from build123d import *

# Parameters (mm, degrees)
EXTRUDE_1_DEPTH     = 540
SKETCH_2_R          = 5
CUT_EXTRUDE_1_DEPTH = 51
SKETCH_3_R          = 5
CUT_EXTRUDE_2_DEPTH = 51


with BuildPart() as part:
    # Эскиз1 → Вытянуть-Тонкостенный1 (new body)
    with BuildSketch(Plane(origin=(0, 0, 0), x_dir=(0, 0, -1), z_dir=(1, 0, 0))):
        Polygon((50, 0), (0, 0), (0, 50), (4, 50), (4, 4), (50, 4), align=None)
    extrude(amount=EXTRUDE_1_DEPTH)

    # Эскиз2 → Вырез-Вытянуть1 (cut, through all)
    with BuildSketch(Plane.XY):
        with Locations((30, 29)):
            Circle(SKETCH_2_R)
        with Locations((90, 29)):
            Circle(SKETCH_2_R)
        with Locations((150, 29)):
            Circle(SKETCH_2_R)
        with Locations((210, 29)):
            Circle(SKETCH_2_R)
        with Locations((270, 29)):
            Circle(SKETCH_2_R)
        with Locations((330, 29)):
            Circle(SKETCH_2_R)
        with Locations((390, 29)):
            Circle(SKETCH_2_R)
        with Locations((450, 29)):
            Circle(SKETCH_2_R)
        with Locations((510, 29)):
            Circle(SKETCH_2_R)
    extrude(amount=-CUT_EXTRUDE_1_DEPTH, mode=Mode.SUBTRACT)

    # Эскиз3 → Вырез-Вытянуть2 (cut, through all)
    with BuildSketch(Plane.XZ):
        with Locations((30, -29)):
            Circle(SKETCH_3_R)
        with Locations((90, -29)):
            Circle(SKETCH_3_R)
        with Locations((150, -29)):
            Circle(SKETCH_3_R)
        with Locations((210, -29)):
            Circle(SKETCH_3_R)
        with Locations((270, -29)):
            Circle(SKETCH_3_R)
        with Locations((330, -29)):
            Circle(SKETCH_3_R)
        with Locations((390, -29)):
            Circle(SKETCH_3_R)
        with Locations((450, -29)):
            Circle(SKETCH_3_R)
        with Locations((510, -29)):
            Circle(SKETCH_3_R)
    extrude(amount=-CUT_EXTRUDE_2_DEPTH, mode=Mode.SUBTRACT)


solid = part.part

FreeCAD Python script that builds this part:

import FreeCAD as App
import Part
import Sketcher

V = App.Vector
Q = App.Units.Quantity

doc = App.newDocument("Part")
body = doc.addObject("PartDesign::Body", "Body")

sketch1 = doc.addObject("Sketcher::SketchObject", "Sketch")
body.addObject(sketch1)
sketch1.AttachmentSupport = (doc.YZ_Plane, [""])
sketch1.MapMode = "FlatFace"
sketch1.addGeometry([
    Part.LineSegment(V(0, 0, 0), V(0, -50, 0)),
    Part.LineSegment(V(0, -50, 0), V(4, -50, 0)),
    Part.LineSegment(V(4, -50, 0), V(4, -4, 0)),
    Part.LineSegment(V(4, -4, 0), V(50, -4, 0)),
    Part.LineSegment(V(50, -4, 0), V(50, 0, 0)),
    Part.LineSegment(V(50, 0, 0), V(0, 0, 0)),
], False)
sketch1.addConstraint([
    Sketcher.Constraint("Coincident", 0, 2, 1, 1),
    Sketcher.Constraint("Coincident", 1, 2, 2, 1),
    Sketcher.Constraint("Coincident", 2, 2, 3, 1),
    Sketcher.Constraint("Coincident", 3, 2, 4, 1),
    Sketcher.Constraint("Coincident", 4, 2, 5, 1),
    Sketcher.Constraint("Coincident", 5, 2, 0, 1),
    Sketcher.Constraint("Vertical", 0),
    Sketcher.Constraint("Horizontal", 1),
    Sketcher.Constraint("Vertical", 2),
    Sketcher.Constraint("Horizontal", 3),
    Sketcher.Constraint("Vertical", 4),
    Sketcher.Constraint("Horizontal", 5),
    Sketcher.Constraint("Coincident", 5, 2, -1, 1),
    Sketcher.Constraint("Equal", 5, 0),
    Sketcher.Constraint("Equal", 3, 2),
    Sketcher.Constraint("DistanceX", 1, 1, 1, 2, Q("4 mm")),
    Sketcher.Constraint("DistanceX", 3, 1, 3, 2, Q("46 mm")),
])
pad1 = doc.addObject("PartDesign::Pad", "Pad")
body.addObject(pad1)
pad1.Profile = sketch1
pad1.Length = 540

sketch2 = doc.addObject("Sketcher::SketchObject", "Sketch001")
body.addObject(sketch2)
sketch2.AttachmentSupport = (doc.XY_Plane, [""])
sketch2.MapMode = "FlatFace"
sketch2.addGeometry([
    Part.Circle(V(30, 29, 0), V(0, 0, 1), 5),
    Part.Circle(V(90, 29, 0), V(0, 0, 1), 5),
    Part.Circle(V(150, 29, 0), V(0, 0, 1), 5),
    Part.Circle(V(210, 29, 0), V(0, 0, 1), 5),
    Part.Circle(V(270, 29, 0), V(0, 0, 1), 5),
    Part.Circle(V(330, 29, 0), V(0, 0, 1), 5),
    Part.Circle(V(390, 29, 0), V(0, 0, 1), 5),
    Part.Circle(V(450, 29, 0), V(0, 0, 1), 5),
    Part.Circle(V(510, 29, 0), V(0, 0, 1), 5),
], False)
sketch2.addConstraint([
    Sketcher.Constraint("Equal", 0, 1),
    Sketcher.Constraint("Equal", 1, 2),
    Sketcher.Constraint("Equal", 2, 3),
    Sketcher.Constraint("Equal", 3, 4),
    Sketcher.Constraint("Equal", 4, 5),
    Sketcher.Constraint("Equal", 5, 6),
    Sketcher.Constraint("Equal", 6, 7),
    Sketcher.Constraint("Equal", 7, 8),
    Sketcher.Constraint("Horizontal", 0, 3, 1, 3),
    Sketcher.Constraint("Horizontal", 1, 3, 2, 3),
    Sketcher.Constraint("Horizontal", 2, 3, 3, 3),
    Sketcher.Constraint("Horizontal", 3, 3, 4, 3),
    Sketcher.Constraint("Horizontal", 4, 3, 5, 3),
    Sketcher.Constraint("Horizontal", 5, 3, 6, 3),
    Sketcher.Constraint("Horizontal", 6, 3, 7, 3),
    Sketcher.Constraint("Horizontal", 7, 3, 8, 3),
    Sketcher.Constraint("Diameter", 0, Q("10 mm")),
    Sketcher.Constraint("DistanceX", -1, 1, 0, 3, Q("30 mm")),
    Sketcher.Constraint("DistanceY", -1, 1, 0, 3, Q("29 mm")),
    Sketcher.Constraint("DistanceX", -1, 1, 1, 3, Q("90 mm")),
    Sketcher.Constraint("DistanceX", -1, 1, 2, 3, Q("150 mm")),
    Sketcher.Constraint("DistanceX", -1, 1, 3, 3, Q("210 mm")),
    Sketcher.Constraint("DistanceX", -1, 1, 4, 3, Q("270 mm")),
    Sketcher.Constraint("DistanceX", -1, 1, 5, 3, Q("330 mm")),
    Sketcher.Constraint("DistanceX", -1, 1, 6, 3, Q("390 mm")),
    Sketcher.Constraint("DistanceX", -1, 1, 7, 3, Q("450 mm")),
    Sketcher.Constraint("DistanceX", -1, 1, 8, 3, Q("510 mm")),
])
pocket1 = doc.addObject("PartDesign::Pocket", "Pocket")
body.addObject(pocket1)
pocket1.Profile = sketch2
pocket1.Type = "ThroughAll"

sketch3 = doc.addObject("Sketcher::SketchObject", "Sketch002")
body.addObject(sketch3)
sketch3.AttachmentSupport = (doc.XZ_Plane, [""])
sketch3.MapMode = "FlatFace"
sketch3.addGeometry([
    Part.Circle(V(30, -29, 0), V(0, 0, 1), 5),
    Part.Circle(V(90, -29, 0), V(0, 0, 1), 5),
    Part.Circle(V(150, -29, 0), V(0, 0, 1), 5),
    Part.Circle(V(210, -29, 0), V(0, 0, 1), 5),
    Part.Circle(V(270, -29, 0), V(0, 0, 1), 5),
    Part.Circle(V(330, -29, 0), V(0, 0, 1), 5),
    Part.Circle(V(390, -29, 0), V(0, 0, 1), 5),
    Part.Circle(V(450, -29, 0), V(0, 0, 1), 5),
    Part.Circle(V(510, -29, 0), V(0, 0, 1), 5),
], False)
sketch3.addConstraint([
    Sketcher.Constraint("Equal", 0, 1),
    Sketcher.Constraint("Equal", 1, 2),
    Sketcher.Constraint("Equal", 2, 3),
    Sketcher.Constraint("Equal", 3, 4),
    Sketcher.Constraint("Equal", 4, 5),
    Sketcher.Constraint("Equal", 5, 6),
    Sketcher.Constraint("Equal", 6, 7),
    Sketcher.Constraint("Equal", 7, 8),
    Sketcher.Constraint("Horizontal", 0, 3, 1, 3),
    Sketcher.Constraint("Horizontal", 1, 3, 2, 3),
    Sketcher.Constraint("Horizontal", 2, 3, 3, 3),
    Sketcher.Constraint("Horizontal", 3, 3, 4, 3),
    Sketcher.Constraint("Horizontal", 4, 3, 5, 3),
    Sketcher.Constraint("Horizontal", 5, 3, 6, 3),
    Sketcher.Constraint("Horizontal", 6, 3, 7, 3),
    Sketcher.Constraint("Horizontal", 7, 3, 8, 3),
    Sketcher.Constraint("Diameter", 0, Q("10 mm")),
    Sketcher.Constraint("DistanceX", -1, 1, 0, 3, Q("30 mm")),
    Sketcher.Constraint("DistanceY", 0, 3, -1, 1, Q("29 mm")),
    Sketcher.Constraint("DistanceX", -1, 1, 1, 3, Q("90 mm")),
    Sketcher.Constraint("DistanceX", -1, 1, 2, 3, Q("150 mm")),
    Sketcher.Constraint("DistanceX", -1, 1, 3, 3, Q("210 mm")),
    Sketcher.Constraint("DistanceX", -1, 1, 4, 3, Q("270 mm")),
    Sketcher.Constraint("DistanceX", -1, 1, 5, 3, Q("330 mm")),
    Sketcher.Constraint("DistanceX", -1, 1, 6, 3, Q("390 mm")),
    Sketcher.Constraint("DistanceX", -1, 1, 7, 3, Q("450 mm")),
    Sketcher.Constraint("DistanceX", -1, 1, 8, 3, Q("510 mm")),
])
pocket2 = doc.addObject("PartDesign::Pocket", "Pocket001")
body.addObject(pocket2)
pocket2.Profile = sketch3
pocket2.Type = "ThroughAll"

doc.recompute()
